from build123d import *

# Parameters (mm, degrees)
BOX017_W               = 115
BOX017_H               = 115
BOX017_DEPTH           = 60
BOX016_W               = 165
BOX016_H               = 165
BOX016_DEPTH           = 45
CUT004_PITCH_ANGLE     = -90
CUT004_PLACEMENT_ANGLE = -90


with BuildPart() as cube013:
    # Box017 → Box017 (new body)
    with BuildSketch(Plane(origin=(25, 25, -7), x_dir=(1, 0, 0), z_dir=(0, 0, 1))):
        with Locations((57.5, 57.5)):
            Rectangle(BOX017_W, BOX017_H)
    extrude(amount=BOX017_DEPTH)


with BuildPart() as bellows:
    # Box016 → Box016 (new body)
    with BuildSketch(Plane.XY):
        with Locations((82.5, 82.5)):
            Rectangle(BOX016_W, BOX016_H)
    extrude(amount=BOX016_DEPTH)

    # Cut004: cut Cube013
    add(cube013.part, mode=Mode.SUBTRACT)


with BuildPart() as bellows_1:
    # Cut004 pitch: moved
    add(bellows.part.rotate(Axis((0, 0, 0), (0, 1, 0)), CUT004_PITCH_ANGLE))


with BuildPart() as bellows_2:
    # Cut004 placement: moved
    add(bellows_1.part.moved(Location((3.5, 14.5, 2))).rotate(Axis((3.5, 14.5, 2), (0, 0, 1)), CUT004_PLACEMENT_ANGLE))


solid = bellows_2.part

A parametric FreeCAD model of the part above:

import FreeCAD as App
import Part
import Sketcher
from FreeCAD import Vector
Q = App.Units.Quantity


def add_polygon(sketch, points):
    """Adds a closed chain of lines whose ends are joined by coincident constraints."""
    first, n = sketch.GeometryCount, len(points)
    for a, b in zip(points, points[1:] + points[:1]):
        sketch.addGeometry(Part.LineSegment(App.Vector(*a, 0), App.Vector(*b, 0)), False)
    for i in range(n):
        sketch.addConstraint(Sketcher.Constraint("Coincident", first + i, 2, first + (i + 1) % n, 1))

doc = App.newDocument("Part")
body = doc.addObject("PartDesign::Body", "Body")

sketch1 = body.newObject("Sketcher::SketchObject", "Sketch")
sketch1.AttachmentSupport = (doc.getObject("XY_Plane"), [""])
sketch1.MapMode = "FlatFace"
sketch1.AttachmentOffset = App.Placement(Vector(0, 0, -7), App.Rotation())
add_polygon(sketch1, [(25, 140), (25, 25), (140, 25), (140, 140)])
sketch1.addConstraint([
    Sketcher.Constraint("Vertical", 0),
    Sketcher.Constraint("Horizontal", 1),
    Sketcher.Constraint("Vertical", 2),
    Sketcher.Constraint("Horizontal", 3),
    Sketcher.Constraint("Equal", 3, 0),
    Sketcher.Constraint("DistanceX", 1, 1, 1, 2, Q("115 mm")),
    Sketcher.Constraint("DistanceX", -1, 1, 0, 2, Q("25 mm")),
    Sketcher.Constraint("DistanceY", -1, 1, 0, 2, Q("25 mm")),
])
pad1 = body.newObject("PartDesign::Pad", "Pad")
pad1.Profile = sketch1
pad1.Length = 60
body2 = doc.addObject("PartDesign::Body", "Body001")

sketch2 = body2.newObject("Sketcher::SketchObject", "Sketch001")
sketch2.AttachmentSupport = (doc.getObject("XY_Plane001"), [""])
sketch2.MapMode = "FlatFace"
add_polygon(sketch2, [(0, 165), (0, 0), (165, 0), (165, 165)])
sketch2.addConstraint([
    Sketcher.Constraint("Vertical", 0),
    Sketcher.Constraint("Horizontal", 1),
    Sketcher.Constraint("Vertical", 2),
    Sketcher.Constraint("Horizontal", 3),
    Sketcher.Constraint("Coincident", 0, 2, -1, 1),
    Sketcher.Constraint("Equal", 3, 0),
    Sketcher.Constraint("DistanceX", 1, 1, 1, 2, Q("165 mm")),
])
pad2 = body2.newObject("PartDesign::Pad", "Pad001")
pad2.Profile = sketch2
pad2.Length = 45
doc.recompute()

boolean = body2.newObject("PartDesign::Boolean", "Boolean")
boolean.Type = "Cut"
boolean.addObjects([body])
body3 = doc.addObject("PartDesign::Body", "Body002")
doc.recompute()

body2.Placement = App.Placement(Vector(0, 0, 0), App.Rotation(Vector(0, 1, 0), 270))
boolean2 = body3.newObject("PartDesign::Boolean", "Boolean001")
boolean2.Type = "Fuse"
boolean2.addObjects([body2])
body4 = doc.addObject("PartDesign::Body", "Body003")
doc.recompute()

body3.Placement = App.Placement(Vector(3.5, 14.5, 2), App.Rotation(Vector(0, 0, 1), 270))
boolean3 = body4.newObject("PartDesign::Boolean", "Boolean002")
boolean3.Type = "Fuse"
boolean3.addObjects([body3])

doc.recompute()
